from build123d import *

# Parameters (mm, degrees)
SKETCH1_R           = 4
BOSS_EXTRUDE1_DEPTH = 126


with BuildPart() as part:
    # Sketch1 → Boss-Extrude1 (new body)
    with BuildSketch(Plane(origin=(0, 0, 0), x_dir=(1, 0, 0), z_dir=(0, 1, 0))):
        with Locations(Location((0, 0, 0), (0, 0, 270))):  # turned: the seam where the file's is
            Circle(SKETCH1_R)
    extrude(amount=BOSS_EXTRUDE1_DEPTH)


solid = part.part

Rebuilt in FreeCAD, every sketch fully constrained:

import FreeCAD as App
import Part
import Sketcher

V = App.Vector

doc = App.newDocument("Part")
params = doc.addObject("Spreadsheet::Sheet", "Params")
for row, (alias, value) in enumerate([
    ("sketch1_diameter", "8 mm"),
    ("pad1_length", "126 mm"),
], start=1):
    params.set(f"A{row}", alias)
    params.set(f"B{row}", "=" + value)
    params.setAlias(f"B{row}", alias)

body = doc.addObject("PartDesign::Body", "Body")

# Sketch on XZ plane
sketch1 = body.newObject("Sketcher::SketchObject", "Sketch")
sketch1.AttachmentSupport = (doc.getObject("XZ_Plane"), [""])
sketch1.MapMode = "FlatFace"
sketch1.addGeometry(Part.Circle(V(0, 0, 0), V(0, 0, 1), 4), False)
sketch1.addConstraint(Sketcher.Constraint("Coincident", 0, 3, -1, 1))
sketch1.addConstraint(Sketcher.Constraint("Diameter", 0, 8.0))
sketch1.setExpression("Constraints[1]", "Params.sketch1_diameter")
pad1 = body.newObject("PartDesign::Pad", "Pad")
pad1.Profile = sketch1
pad1.setExpression("Length", "Params.pad1_length")
pad1.Reversed = True

doc.recompute()
